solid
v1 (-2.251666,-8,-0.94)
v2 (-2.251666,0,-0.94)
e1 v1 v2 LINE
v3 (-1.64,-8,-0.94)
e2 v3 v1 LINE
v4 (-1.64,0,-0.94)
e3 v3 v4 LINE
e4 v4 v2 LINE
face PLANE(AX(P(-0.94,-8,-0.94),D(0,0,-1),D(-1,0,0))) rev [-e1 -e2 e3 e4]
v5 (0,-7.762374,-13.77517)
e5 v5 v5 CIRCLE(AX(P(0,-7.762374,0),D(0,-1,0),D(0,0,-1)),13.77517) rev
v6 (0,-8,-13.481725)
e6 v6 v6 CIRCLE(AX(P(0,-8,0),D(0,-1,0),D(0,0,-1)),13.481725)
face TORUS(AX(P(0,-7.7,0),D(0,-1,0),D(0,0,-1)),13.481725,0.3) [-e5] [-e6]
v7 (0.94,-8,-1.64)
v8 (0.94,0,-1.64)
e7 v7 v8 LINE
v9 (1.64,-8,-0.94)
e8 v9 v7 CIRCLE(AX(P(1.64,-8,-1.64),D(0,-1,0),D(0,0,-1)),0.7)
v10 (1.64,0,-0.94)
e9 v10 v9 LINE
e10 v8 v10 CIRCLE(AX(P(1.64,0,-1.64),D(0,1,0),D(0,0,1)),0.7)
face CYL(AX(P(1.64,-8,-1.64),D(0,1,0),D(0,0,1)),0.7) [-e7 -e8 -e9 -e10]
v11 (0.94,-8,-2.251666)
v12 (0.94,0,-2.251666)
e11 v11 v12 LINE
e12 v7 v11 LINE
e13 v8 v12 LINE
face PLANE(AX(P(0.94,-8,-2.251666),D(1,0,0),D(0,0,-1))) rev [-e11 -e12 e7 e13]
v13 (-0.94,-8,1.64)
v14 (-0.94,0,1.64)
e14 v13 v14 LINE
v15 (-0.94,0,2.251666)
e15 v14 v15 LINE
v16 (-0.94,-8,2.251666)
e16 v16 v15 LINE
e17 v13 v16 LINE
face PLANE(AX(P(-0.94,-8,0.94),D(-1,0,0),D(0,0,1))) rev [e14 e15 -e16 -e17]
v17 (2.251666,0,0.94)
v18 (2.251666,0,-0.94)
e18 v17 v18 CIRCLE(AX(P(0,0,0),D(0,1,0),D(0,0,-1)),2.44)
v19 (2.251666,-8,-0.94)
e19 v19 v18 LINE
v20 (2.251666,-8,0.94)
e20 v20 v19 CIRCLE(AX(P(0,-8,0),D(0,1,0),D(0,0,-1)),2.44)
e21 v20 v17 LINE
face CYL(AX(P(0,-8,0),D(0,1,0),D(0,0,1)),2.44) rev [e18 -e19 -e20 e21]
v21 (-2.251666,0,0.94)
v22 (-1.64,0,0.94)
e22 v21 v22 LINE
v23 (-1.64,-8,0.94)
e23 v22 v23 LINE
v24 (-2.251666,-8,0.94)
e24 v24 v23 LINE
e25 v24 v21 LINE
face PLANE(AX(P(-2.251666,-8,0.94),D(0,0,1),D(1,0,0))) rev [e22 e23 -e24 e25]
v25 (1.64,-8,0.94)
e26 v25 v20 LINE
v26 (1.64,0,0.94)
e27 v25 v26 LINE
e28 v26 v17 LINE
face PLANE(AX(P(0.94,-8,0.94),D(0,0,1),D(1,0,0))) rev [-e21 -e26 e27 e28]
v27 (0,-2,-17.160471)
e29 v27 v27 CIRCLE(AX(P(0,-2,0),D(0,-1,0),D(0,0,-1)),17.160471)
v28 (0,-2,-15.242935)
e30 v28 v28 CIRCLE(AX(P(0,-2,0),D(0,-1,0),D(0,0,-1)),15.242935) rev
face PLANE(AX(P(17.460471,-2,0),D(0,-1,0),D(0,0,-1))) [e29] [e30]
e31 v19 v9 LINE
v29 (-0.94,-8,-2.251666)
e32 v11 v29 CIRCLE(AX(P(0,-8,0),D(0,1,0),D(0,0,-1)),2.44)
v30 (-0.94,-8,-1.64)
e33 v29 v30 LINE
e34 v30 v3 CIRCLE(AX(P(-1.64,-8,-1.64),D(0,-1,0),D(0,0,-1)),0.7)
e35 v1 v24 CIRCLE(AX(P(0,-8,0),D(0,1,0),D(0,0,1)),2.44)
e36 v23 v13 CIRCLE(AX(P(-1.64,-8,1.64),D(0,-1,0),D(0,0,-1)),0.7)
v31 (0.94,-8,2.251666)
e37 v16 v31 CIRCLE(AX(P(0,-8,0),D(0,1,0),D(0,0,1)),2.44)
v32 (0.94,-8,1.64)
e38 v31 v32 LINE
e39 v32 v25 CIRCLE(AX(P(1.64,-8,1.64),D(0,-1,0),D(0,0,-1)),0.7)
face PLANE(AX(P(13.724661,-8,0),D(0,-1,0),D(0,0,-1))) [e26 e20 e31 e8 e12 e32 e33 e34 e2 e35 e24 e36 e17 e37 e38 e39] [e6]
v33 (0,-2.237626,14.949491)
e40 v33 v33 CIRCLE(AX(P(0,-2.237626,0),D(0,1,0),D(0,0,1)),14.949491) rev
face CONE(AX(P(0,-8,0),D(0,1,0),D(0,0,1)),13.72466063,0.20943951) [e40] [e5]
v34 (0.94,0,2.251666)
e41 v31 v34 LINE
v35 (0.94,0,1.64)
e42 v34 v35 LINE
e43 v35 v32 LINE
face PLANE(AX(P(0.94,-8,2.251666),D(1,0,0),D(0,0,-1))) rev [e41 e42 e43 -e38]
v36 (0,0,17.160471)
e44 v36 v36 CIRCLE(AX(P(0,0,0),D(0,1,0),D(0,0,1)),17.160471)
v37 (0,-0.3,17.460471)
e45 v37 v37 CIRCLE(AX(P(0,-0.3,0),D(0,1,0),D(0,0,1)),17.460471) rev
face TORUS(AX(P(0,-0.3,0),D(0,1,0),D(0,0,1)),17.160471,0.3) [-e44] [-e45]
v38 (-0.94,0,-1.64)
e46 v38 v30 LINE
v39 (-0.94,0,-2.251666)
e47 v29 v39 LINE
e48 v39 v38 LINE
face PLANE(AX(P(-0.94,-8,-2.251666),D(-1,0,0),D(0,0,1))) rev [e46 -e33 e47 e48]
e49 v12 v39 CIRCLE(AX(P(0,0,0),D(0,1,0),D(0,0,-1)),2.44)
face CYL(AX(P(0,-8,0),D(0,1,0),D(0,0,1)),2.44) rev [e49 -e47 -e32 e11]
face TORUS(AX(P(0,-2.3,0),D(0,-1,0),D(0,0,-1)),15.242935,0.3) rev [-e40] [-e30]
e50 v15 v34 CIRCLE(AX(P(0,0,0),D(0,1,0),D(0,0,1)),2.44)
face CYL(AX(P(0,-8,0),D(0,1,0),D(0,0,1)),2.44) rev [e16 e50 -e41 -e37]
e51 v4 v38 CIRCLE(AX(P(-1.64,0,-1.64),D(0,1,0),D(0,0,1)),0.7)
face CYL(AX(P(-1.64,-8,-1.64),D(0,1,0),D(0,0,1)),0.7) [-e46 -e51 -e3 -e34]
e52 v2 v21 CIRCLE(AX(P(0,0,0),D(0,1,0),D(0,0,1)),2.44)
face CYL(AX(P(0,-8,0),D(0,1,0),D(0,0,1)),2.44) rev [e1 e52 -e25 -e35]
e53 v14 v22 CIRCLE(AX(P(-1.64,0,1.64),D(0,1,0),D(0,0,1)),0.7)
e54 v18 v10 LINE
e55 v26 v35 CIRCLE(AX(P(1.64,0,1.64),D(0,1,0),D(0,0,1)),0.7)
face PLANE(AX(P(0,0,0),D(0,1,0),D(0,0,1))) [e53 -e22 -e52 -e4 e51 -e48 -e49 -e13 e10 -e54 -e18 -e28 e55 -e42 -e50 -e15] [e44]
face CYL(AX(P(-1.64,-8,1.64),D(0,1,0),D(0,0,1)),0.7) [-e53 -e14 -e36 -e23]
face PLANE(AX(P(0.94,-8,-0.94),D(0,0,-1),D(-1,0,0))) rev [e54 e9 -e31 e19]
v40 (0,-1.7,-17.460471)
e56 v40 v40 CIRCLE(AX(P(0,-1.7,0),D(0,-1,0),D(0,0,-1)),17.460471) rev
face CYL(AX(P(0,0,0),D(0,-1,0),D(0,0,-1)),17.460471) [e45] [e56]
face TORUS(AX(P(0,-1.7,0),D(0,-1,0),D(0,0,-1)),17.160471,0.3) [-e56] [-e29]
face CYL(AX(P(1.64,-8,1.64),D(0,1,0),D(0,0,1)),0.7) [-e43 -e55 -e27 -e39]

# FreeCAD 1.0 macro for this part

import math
import FreeCAD as App
import Part
import Sketcher
Q = App.Units.Quantity


def edges_at(feature, points):
    """Names of the edges that pass closest to the given points."""
    edges = feature.Shape.Edges
    near = lambda p: min(range(len(edges)), key=lambda i: edges[i].distToShape(Part.Vertex(*p))[0])
    return sorted({f"Edge{near(p) + 1}" for p in points})


def add_polygon(sketch, points):
    """Adds a closed chain of lines whose ends are joined by coincident constraints."""
    first, n = sketch.GeometryCount, len(points)
    for a, b in zip(points, points[1:] + points[:1]):
        sketch.addGeometry(Part.LineSegment(App.Vector(*a, 0), App.Vector(*b, 0)), False)
    for i in range(n):
        sketch.addConstraint(Sketcher.Constraint("Coincident", first + i, 2, first + (i + 1) % n, 1))

doc = App.newDocument("Part")
params = doc.addObject("Spreadsheet::Sheet", "Params")
for row, (alias, value) in enumerate([
    ("sketch1_height", "8 mm"),
    ("sketch1_height2", "2 mm"),
    ("revolution_angle", "360 deg"),
    ("sketch2_radius", "2.44 mm"),
    ("fillet_radius", "0.7 mm"),
    ("fillet2_radius", "0.3 mm"),
], start=1):
    params.set(f"A{row}", alias)
    params.set(f"B{row}", "=" + value)
    params.setAlias(f"B{row}", alias)

body = doc.addObject("PartDesign::Body", "Body")

# Sketch on XY plane
sketch1 = doc.addObject("Sketcher::SketchObject", "Sketch")
body.addObject(sketch1)
sketch1.AttachmentSupport = (doc.XY_Plane, [""])
sketch1.MapMode = "FlatFace"
add_polygon(sketch1, [(17.460471, 0), (0, 0), (0, -8), (13.724661, -8), (15, -2), (17.460471, -2)])  # lines 0-5
sketch1.addConstraint([
    Sketcher.Constraint("Horizontal", 0),
    Sketcher.Constraint("Vertical", 1),
    Sketcher.Constraint("Horizontal", 2),
    Sketcher.Constraint("Horizontal", 4),
    Sketcher.Constraint("Vertical", 5),
    Sketcher.Constraint("Coincident", 0, 2, -1, 1),
    Sketcher.Constraint("DistanceY", 1, 2, 1, 1, 8.0),
    Sketcher.Constraint("DistanceY", 5, 1, 5, 2, 2.0),
    Sketcher.Constraint("Angle", 3, Q("78 deg")),
    Sketcher.Constraint("DistanceX", -1, 1, 3, 2, 15.0),
    Sketcher.Constraint("DistanceX", 0, 2, 0, 1, 17.460471),
])
sketch1.setExpression("Constraints[12]", "Params.sketch1_height")
sketch1.setExpression("Constraints[13]", "Params.sketch1_height2")
revolution = doc.addObject("PartDesign::Revolution", "Revolution")
body.addObject(revolution)
revolution.Profile = sketch1
revolution.ReferenceAxis = (sketch1, ["V_Axis"])
revolution.setExpression("Angle", "Params.revolution_angle")

# Sketch on XZ plane
sketch2 = doc.addObject("Sketcher::SketchObject", "Sketch001")
body.addObject(sketch2)
sketch2.AttachmentSupport = (doc.XZ_Plane, [""])
sketch2.MapMode = "FlatFace"
sketch2.addGeometry([
    Part.LineSegment(App.Vector(-0.94, -0.94, 0), App.Vector(-2.251666, -0.94, 0)),  # 0
    Part.ArcOfCircle(Part.Circle(App.Vector(0, 0, 0), App.Vector(0, 0, 1), 2.44), math.radians(157.340993), math.radians(202.659007)),  # 1
    Part.LineSegment(App.Vector(-2.251666, 0.94, 0), App.Vector(-0.94, 0.94, 0)),  # 2
    Part.LineSegment(App.Vector(-0.94, 0.94, 0), App.Vector(-0.94, 2.251666, 0)),  # 3
    Part.ArcOfCircle(Part.Circle(App.Vector(0, 0, 0), App.Vector(0, 0, 1), 2.44), math.radians(67.340993), math.radians(112.659007)),  # 4
    Part.LineSegment(App.Vector(0.94, 2.251666, 0), App.Vector(0.94, 0.94, 0)),  # 5
    Part.LineSegment(App.Vector(0.94, 0.94, 0), App.Vector(2.251666, 0.94, 0)),  # 6
    Part.ArcOfCircle(Part.Circle(App.Vector(0, 0, 0), App.Vector(0, 0, 1), 2.44), math.radians(-22.659007), math.radians(22.659007)),  # 7
    Part.LineSegment(App.Vector(2.251666, -0.94, 0), App.Vector(0.94, -0.94, 0)),  # 8
    Part.LineSegment(App.Vector(0.94, -0.94, 0), App.Vector(0.94, -2.251666, 0)),  # 9
    Part.ArcOfCircle(Part.Circle(App.Vector(0, 0, 0), App.Vector(0, 0, 1), 2.44), math.radians(-112.659007), math.radians(-67.340993)),  # 10
    Part.LineSegment(App.Vector(-0.94, -2.251666, 0), App.Vector(-0.94, -0.94, 0)),  # 11
], False)
sketch2.addConstraint([
    Sketcher.Constraint("Coincident", 0, 2, 1, 2),
    Sketcher.Constraint("Coincident", 1, 1, 2, 1),
    Sketcher.Constraint("Coincident", 2, 2, 3, 1),
    Sketcher.Constraint("Coincident", 3, 2, 4, 2),
    Sketcher.Constraint("Coincident", 4, 1, 5, 1),
    Sketcher.Constraint("Coincident", 5, 2, 6, 1),
    Sketcher.Constraint("Coincident", 6, 2, 7, 2),
    Sketcher.Constraint("Coincident", 7, 1, 8, 1),
    Sketcher.Constraint("Coincident", 8, 2, 9, 1),
    Sketcher.Constraint("Coincident", 9, 2, 10, 2),
    Sketcher.Constraint("Coincident", 10, 1, 11, 1),
    Sketcher.Constraint("Coincident", 11, 2, 0, 1),
    Sketcher.Constraint("Horizontal", 0),
    Sketcher.Constraint("Horizontal", 2),
    Sketcher.Constraint("Vertical", 3),
    Sketcher.Constraint("Vertical", 5),
    Sketcher.Constraint("Horizontal", 6),
    Sketcher.Constraint("Horizontal", 8),
    Sketcher.Constraint("Vertical", 9),
    Sketcher.Constraint("Vertical", 11),
    Sketcher.Constraint("Coincident", 1, 3, -1, 1),
    Sketcher.Constraint("Coincident", 4, 3, -1, 1),
    Sketcher.Constraint("Coincident", 7, 3, -1, 1),
    Sketcher.Constraint("Coincident", 10, 3, -1, 1),
    Sketcher.Constraint("Equal", 1, 4),
    Sketcher.Constraint("Equal", 4, 7),
    Sketcher.Constraint("Equal", 7, 10),
    Sketcher.Constraint("Symmetric", 2, 2, 8, 2, -1, 1),
    Sketcher.Constraint("Symmetric", 5, 2, 11, 2, -1, 1),
    Sketcher.Constraint("Symmetric", 2, 2, 5, 2, -2),
    Sketcher.Constraint("Equal", 8, 3),
    Sketcher.Constraint("Radius", 1, 2.44),
    Sketcher.Constraint("DistanceY", 0, 2, -1, 1, 0.94),
])
sketch2.setExpression("Constraints[31]", "Params.sketch2_radius")
pocket1 = doc.addObject("PartDesign::Pocket", "Pocket")
body.addObject(pocket1)
pocket1.Profile = sketch2
pocket1.Type = "ThroughAll"
pocket1.Reversed = True
doc.recompute()

fillet = doc.addObject("PartDesign::Fillet", "Fillet")
body.addObject(fillet)
fillet.Base = (pocket1, edges_at(pocket1, [
    (-0.94, -4, -0.94),
    (0.94, -4, -0.94),
    (0.94, -4, 0.94),
    (-0.94, -4, 0.94),
]))
fillet.setExpression("Radius", "Params.fillet_radius")
doc.recompute()

fillet2 = doc.addObject("PartDesign::Fillet", "Fillet001")
body.addObject(fillet2)
fillet2.Base = (fillet, edges_at(fillet, [
    (0, -8, 13.725),
    (0, -2, 15),
    (0, -2, 17.46),
    (0, 0, 17.46),
]))
fillet2.setExpression("Radius", "Params.fillet2_radius")

doc.recompute()
